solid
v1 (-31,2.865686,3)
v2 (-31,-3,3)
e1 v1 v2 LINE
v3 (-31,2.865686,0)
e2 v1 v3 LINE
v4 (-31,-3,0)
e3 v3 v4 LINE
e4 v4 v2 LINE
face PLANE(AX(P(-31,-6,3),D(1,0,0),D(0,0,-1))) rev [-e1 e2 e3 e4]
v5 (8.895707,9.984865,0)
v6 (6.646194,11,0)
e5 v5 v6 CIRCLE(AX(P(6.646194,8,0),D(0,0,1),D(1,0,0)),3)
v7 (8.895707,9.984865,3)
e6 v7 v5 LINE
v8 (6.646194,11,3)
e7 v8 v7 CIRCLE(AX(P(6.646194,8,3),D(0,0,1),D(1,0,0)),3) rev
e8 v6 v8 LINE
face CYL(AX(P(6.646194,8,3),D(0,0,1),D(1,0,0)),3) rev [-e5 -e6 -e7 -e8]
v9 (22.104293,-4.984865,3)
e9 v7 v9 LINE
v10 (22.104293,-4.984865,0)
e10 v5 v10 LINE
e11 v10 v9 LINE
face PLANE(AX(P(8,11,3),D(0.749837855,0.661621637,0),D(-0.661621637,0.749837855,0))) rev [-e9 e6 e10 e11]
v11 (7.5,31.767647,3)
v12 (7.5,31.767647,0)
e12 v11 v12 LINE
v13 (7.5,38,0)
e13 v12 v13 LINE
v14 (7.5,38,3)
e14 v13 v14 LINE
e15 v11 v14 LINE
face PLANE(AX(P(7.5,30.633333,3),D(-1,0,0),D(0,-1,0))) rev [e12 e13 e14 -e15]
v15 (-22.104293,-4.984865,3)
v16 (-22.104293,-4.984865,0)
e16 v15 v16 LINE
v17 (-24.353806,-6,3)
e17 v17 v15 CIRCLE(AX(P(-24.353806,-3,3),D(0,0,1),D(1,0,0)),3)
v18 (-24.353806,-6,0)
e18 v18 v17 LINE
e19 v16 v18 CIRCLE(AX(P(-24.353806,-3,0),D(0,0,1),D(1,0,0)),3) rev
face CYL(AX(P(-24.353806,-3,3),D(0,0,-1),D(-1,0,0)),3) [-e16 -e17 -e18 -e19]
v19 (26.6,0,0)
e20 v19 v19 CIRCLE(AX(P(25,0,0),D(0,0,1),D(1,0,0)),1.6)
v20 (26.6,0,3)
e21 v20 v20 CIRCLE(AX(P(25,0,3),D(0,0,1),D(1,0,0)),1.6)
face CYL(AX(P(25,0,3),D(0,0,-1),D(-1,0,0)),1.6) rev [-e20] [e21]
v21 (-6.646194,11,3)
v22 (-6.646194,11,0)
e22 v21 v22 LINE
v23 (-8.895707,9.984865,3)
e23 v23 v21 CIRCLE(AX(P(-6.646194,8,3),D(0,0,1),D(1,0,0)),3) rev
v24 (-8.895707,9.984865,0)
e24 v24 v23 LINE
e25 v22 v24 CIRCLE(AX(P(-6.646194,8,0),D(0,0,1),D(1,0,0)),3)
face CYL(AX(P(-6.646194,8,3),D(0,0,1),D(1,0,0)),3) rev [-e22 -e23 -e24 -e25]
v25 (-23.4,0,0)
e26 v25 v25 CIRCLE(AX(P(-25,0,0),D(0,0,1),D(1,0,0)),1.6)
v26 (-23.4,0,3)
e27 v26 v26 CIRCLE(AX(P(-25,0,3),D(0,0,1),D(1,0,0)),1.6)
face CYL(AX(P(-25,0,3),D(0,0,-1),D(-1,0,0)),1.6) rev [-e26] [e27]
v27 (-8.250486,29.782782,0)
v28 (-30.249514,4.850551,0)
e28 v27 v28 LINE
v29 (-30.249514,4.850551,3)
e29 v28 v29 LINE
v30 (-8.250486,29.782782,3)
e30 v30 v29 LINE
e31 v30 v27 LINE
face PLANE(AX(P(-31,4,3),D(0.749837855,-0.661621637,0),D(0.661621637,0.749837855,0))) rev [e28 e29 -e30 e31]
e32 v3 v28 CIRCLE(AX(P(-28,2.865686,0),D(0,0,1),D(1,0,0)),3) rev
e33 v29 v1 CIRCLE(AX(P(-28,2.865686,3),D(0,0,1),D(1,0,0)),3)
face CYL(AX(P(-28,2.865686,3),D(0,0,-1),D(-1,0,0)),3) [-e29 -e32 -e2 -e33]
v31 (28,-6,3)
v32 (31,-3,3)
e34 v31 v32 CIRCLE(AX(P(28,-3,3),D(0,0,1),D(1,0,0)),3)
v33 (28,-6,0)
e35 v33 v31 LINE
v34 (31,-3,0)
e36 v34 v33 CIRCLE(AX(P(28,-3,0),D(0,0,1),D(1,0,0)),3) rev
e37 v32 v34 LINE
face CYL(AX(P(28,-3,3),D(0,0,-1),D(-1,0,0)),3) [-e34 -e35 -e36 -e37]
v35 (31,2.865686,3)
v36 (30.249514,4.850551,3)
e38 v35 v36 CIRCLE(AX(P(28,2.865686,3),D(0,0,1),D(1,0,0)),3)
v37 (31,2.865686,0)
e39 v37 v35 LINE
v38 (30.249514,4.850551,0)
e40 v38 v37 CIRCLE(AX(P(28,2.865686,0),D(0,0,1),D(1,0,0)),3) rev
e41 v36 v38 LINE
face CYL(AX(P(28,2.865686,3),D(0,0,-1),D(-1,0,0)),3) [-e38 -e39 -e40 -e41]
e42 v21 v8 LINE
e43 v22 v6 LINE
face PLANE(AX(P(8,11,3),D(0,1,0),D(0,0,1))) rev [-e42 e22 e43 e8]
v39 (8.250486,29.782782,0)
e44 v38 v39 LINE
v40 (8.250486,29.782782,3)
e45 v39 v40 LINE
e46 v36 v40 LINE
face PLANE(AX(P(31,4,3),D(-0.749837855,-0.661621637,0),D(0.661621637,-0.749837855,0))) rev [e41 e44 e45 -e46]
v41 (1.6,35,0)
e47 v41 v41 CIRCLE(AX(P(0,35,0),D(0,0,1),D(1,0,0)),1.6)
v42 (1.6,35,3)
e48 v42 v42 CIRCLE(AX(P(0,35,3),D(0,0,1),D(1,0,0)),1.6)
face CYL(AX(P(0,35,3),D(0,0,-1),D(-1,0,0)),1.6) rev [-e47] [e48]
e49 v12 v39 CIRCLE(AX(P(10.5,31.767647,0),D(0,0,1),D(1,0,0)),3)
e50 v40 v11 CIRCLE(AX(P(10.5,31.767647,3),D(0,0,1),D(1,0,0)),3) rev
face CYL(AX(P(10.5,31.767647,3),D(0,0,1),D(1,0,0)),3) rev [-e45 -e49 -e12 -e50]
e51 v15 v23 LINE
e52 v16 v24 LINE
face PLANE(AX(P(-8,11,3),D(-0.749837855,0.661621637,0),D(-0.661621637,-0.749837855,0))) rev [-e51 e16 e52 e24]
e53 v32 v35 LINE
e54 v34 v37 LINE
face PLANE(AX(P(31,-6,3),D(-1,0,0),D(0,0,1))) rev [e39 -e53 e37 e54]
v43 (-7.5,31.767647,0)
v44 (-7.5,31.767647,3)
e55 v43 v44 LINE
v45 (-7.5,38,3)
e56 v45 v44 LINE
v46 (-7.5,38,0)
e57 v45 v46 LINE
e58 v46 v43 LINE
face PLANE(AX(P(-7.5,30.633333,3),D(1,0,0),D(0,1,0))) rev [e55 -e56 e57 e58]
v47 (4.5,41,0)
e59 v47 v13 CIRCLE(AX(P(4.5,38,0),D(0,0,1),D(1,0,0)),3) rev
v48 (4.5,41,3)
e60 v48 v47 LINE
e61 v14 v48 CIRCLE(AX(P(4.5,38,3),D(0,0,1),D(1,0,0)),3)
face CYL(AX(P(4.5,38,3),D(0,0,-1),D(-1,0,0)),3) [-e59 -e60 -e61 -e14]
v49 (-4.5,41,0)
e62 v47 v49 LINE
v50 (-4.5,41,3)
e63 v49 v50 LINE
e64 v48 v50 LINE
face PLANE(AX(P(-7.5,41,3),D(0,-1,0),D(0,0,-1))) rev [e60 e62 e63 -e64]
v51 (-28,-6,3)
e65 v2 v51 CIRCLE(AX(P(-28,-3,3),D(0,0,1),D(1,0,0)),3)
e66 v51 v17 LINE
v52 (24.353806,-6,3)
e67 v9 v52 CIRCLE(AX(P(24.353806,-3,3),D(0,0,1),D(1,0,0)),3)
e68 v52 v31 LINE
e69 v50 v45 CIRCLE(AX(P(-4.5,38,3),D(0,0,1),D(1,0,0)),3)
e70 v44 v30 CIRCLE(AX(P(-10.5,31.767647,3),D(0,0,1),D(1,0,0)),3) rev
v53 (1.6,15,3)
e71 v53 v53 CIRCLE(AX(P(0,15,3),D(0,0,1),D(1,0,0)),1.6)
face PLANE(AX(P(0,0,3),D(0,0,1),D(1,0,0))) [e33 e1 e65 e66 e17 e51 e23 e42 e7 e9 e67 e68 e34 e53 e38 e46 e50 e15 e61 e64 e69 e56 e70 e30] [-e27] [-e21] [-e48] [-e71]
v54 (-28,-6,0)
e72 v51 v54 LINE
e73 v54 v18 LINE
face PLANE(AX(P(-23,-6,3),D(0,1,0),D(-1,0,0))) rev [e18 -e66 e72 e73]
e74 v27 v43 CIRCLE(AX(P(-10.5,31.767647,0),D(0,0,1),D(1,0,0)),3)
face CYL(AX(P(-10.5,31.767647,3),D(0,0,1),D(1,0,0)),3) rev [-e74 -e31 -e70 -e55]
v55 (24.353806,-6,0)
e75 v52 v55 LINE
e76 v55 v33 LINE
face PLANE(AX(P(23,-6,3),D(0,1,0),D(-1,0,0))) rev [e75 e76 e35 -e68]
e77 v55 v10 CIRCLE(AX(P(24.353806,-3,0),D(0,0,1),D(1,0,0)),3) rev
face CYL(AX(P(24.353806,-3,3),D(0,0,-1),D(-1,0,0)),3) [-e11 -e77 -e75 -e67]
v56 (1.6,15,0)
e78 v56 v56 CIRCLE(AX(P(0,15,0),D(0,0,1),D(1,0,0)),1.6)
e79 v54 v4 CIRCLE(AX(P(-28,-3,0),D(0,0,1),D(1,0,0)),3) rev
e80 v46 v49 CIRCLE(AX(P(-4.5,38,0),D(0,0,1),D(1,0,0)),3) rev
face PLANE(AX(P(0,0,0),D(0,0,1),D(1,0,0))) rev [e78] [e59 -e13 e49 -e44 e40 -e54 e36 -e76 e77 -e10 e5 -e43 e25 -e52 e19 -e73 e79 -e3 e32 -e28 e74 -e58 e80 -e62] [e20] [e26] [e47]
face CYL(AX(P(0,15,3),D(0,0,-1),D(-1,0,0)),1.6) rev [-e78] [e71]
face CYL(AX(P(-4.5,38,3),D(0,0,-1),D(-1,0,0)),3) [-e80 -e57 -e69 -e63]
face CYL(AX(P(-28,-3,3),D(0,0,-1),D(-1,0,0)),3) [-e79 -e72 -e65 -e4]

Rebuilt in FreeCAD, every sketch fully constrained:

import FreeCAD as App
import Part
import Sketcher
from FreeCAD import Vector


def edges_at(feature, points):
    """Names of the edges that pass closest to the given points."""
    edges = feature.Shape.Edges
    near = lambda p: min(range(len(edges)), key=lambda i: edges[i].distToShape(Part.Vertex(*p))[0])
    return sorted({f"Edge{near(p) + 1}" for p in points})

doc = App.newDocument("Part")
body = doc.addObject("PartDesign::Body", "Body")

# Sketch on XY plane
sketch1 = body.newObject("Sketcher::SketchObject", "Sketch")
sketch1.AttachmentSupport = (doc.getObject("XY_Plane"), [""])
sketch1.MapMode = "FlatFace"
sketch1.addGeometry([
    Part.LineSegment(Vector(-8, 11, 0), Vector(8, 11, 0)),  # 0
    Part.LineSegment(Vector(8, 11, 0), Vector(23, -6, 0)),  # 1
    Part.LineSegment(Vector(23, -6, 0), Vector(31, -6, 0)),  # 2
    Part.LineSegment(Vector(31, -6, 0), Vector(31, 4, 0)),  # 3
    Part.LineSegment(Vector(31, 4, 0), Vector(7.5, 30.6, 0)),  # 4
    Part.LineSegment(Vector(7.5, 30.6, 0), Vector(7.5, 41, 0)),  # 5
    Part.LineSegment(Vector(7.5, 41, 0), Vector(-7.5, 41, 0)),  # 6
    Part.LineSegment(Vector(-7.5, 41, 0), Vector(-7.5, 30.6, 0)),  # 7
    Part.LineSegment(Vector(-7.5, 30.6, 0), Vector(-31, 4, 0)),  # 8
    Part.LineSegment(Vector(-31, 4, 0), Vector(-31, -6, 0)),  # 9
    Part.LineSegment(Vector(-31, -6, 0), Vector(-23, -6, 0)),  # 10
    Part.LineSegment(Vector(-23, -6, 0), Vector(-8, 11, 0)),  # 11
    Part.Circle(Vector(25, 0, 0), Vector(0, 0, 1), 1.6),  # 12
    Part.Circle(Vector(-25, 0, 0), Vector(0, 0, 1), 1.6),  # 13
    Part.Circle(Vector(0, 15, 0), Vector(0, 0, 1), 1.6),  # 14
    Part.Circle(Vector(0, 35, 0), Vector(0, 0, 1), 1.6),  # 15
], False)
sketch1.addConstraint([
    Sketcher.Constraint("Coincident", 0, 2, 1, 1),
    Sketcher.Constraint("Coincident", 1, 2, 2, 1),
    Sketcher.Constraint("Coincident", 2, 2, 3, 1),
    Sketcher.Constraint("Coincident", 3, 2, 4, 1),
    Sketcher.Constraint("Coincident", 4, 2, 5, 1),
    Sketcher.Constraint("Coincident", 5, 2, 6, 1),
    Sketcher.Constraint("Coincident", 6, 2, 7, 1),
    Sketcher.Constraint("Coincident", 7, 2, 8, 1),
    Sketcher.Constraint("Coincident", 8, 2, 9, 1),
    Sketcher.Constraint("Coincident", 9, 2, 10, 1),
    Sketcher.Constraint("Coincident", 10, 2, 11, 1),
    Sketcher.Constraint("Coincident", 11, 2, 0, 1),
    Sketcher.Constraint("Horizontal", 0),
    Sketcher.Constraint("Horizontal", 2),
    Sketcher.Constraint("Vertical", 3),
    Sketcher.Constraint("Vertical", 5),
    Sketcher.Constraint("Horizontal", 6),
    Sketcher.Constraint("Vertical", 7),
    Sketcher.Constraint("Vertical", 9),
    Sketcher.Constraint("Horizontal", 10),
    Sketcher.Constraint("Equal", 12, 13),
    Sketcher.Constraint("Equal", 13, 14),
    Sketcher.Constraint("Equal", 14, 15),
    Sketcher.Constraint("Symmetric", 12, 3, 13, 3, -1, 1),
    Sketcher.Constraint("Symmetric", 4, 2, 7, 2, -2),
    Sketcher.Constraint("Symmetric", 3, 2, 8, 2, -2),
    Sketcher.Constraint("Symmetric", 1, 2, 10, 2, -2),
    Sketcher.Constraint("PointOnObject", 12, 3, -1),
    Sketcher.Constraint("PointOnObject", 14, 3, -2),
    Sketcher.Constraint("PointOnObject", 15, 3, -2),
    Sketcher.Constraint("Parallel", 1, 4),
    Sketcher.Constraint("Parallel", 8, 11),
    Sketcher.Constraint("Diameter", 12, 3.2),
    Sketcher.Constraint("DistanceX", 0, 1, 0, 2, 16.0),
    Sketcher.Constraint("DistanceX", 2, 1, 2, 2, 8.0),
    Sketcher.Constraint("DistanceX", 6, 2, 6, 1, 15.0),
    Sketcher.Constraint("DistanceY", 3, 1, 3, 2, 10.0),
    Sketcher.Constraint("DistanceX", -1, 1, 12, 3, 25.0),
    Sketcher.Constraint("DistanceY", -1, 1, 14, 3, 15.0),
    Sketcher.Constraint("DistanceY", -1, 1, 15, 3, 35.0),
    Sketcher.Constraint("DistanceY", -1, 1, 0, 2, 11.0),
    Sketcher.Constraint("DistanceX", -1, 1, 1, 2, 23.0),
    Sketcher.Constraint("DistanceY", 1, 2, -1, 1, 6.0),
    Sketcher.Constraint("DistanceY", -1, 1, 5, 2, 41.0),
])
pad1 = body.newObject("PartDesign::Pad", "Pad")
pad1.Profile = sketch1
pad1.Length = 3
doc.recompute()

fillet = body.newObject("PartDesign::Fillet", "Fillet")
fillet.Base = (pad1, edges_at(pad1, [
    (23, -6, 1.5),
    (8, 11, 1.5),
    (-8, 11, 1.5),
    (-23, -6, 1.5),
    (-31, -6, 1.5),
    (-31, 4, 1.5),
    (-7.5, 30.633, 1.5),
    (-7.5, 41, 1.5),
    (7.5, 41, 1.5),
    (7.5, 30.633, 1.5),
    (31, 4, 1.5),
    (31, -6, 1.5),
]))
fillet.Radius = 3

doc.recompute()
